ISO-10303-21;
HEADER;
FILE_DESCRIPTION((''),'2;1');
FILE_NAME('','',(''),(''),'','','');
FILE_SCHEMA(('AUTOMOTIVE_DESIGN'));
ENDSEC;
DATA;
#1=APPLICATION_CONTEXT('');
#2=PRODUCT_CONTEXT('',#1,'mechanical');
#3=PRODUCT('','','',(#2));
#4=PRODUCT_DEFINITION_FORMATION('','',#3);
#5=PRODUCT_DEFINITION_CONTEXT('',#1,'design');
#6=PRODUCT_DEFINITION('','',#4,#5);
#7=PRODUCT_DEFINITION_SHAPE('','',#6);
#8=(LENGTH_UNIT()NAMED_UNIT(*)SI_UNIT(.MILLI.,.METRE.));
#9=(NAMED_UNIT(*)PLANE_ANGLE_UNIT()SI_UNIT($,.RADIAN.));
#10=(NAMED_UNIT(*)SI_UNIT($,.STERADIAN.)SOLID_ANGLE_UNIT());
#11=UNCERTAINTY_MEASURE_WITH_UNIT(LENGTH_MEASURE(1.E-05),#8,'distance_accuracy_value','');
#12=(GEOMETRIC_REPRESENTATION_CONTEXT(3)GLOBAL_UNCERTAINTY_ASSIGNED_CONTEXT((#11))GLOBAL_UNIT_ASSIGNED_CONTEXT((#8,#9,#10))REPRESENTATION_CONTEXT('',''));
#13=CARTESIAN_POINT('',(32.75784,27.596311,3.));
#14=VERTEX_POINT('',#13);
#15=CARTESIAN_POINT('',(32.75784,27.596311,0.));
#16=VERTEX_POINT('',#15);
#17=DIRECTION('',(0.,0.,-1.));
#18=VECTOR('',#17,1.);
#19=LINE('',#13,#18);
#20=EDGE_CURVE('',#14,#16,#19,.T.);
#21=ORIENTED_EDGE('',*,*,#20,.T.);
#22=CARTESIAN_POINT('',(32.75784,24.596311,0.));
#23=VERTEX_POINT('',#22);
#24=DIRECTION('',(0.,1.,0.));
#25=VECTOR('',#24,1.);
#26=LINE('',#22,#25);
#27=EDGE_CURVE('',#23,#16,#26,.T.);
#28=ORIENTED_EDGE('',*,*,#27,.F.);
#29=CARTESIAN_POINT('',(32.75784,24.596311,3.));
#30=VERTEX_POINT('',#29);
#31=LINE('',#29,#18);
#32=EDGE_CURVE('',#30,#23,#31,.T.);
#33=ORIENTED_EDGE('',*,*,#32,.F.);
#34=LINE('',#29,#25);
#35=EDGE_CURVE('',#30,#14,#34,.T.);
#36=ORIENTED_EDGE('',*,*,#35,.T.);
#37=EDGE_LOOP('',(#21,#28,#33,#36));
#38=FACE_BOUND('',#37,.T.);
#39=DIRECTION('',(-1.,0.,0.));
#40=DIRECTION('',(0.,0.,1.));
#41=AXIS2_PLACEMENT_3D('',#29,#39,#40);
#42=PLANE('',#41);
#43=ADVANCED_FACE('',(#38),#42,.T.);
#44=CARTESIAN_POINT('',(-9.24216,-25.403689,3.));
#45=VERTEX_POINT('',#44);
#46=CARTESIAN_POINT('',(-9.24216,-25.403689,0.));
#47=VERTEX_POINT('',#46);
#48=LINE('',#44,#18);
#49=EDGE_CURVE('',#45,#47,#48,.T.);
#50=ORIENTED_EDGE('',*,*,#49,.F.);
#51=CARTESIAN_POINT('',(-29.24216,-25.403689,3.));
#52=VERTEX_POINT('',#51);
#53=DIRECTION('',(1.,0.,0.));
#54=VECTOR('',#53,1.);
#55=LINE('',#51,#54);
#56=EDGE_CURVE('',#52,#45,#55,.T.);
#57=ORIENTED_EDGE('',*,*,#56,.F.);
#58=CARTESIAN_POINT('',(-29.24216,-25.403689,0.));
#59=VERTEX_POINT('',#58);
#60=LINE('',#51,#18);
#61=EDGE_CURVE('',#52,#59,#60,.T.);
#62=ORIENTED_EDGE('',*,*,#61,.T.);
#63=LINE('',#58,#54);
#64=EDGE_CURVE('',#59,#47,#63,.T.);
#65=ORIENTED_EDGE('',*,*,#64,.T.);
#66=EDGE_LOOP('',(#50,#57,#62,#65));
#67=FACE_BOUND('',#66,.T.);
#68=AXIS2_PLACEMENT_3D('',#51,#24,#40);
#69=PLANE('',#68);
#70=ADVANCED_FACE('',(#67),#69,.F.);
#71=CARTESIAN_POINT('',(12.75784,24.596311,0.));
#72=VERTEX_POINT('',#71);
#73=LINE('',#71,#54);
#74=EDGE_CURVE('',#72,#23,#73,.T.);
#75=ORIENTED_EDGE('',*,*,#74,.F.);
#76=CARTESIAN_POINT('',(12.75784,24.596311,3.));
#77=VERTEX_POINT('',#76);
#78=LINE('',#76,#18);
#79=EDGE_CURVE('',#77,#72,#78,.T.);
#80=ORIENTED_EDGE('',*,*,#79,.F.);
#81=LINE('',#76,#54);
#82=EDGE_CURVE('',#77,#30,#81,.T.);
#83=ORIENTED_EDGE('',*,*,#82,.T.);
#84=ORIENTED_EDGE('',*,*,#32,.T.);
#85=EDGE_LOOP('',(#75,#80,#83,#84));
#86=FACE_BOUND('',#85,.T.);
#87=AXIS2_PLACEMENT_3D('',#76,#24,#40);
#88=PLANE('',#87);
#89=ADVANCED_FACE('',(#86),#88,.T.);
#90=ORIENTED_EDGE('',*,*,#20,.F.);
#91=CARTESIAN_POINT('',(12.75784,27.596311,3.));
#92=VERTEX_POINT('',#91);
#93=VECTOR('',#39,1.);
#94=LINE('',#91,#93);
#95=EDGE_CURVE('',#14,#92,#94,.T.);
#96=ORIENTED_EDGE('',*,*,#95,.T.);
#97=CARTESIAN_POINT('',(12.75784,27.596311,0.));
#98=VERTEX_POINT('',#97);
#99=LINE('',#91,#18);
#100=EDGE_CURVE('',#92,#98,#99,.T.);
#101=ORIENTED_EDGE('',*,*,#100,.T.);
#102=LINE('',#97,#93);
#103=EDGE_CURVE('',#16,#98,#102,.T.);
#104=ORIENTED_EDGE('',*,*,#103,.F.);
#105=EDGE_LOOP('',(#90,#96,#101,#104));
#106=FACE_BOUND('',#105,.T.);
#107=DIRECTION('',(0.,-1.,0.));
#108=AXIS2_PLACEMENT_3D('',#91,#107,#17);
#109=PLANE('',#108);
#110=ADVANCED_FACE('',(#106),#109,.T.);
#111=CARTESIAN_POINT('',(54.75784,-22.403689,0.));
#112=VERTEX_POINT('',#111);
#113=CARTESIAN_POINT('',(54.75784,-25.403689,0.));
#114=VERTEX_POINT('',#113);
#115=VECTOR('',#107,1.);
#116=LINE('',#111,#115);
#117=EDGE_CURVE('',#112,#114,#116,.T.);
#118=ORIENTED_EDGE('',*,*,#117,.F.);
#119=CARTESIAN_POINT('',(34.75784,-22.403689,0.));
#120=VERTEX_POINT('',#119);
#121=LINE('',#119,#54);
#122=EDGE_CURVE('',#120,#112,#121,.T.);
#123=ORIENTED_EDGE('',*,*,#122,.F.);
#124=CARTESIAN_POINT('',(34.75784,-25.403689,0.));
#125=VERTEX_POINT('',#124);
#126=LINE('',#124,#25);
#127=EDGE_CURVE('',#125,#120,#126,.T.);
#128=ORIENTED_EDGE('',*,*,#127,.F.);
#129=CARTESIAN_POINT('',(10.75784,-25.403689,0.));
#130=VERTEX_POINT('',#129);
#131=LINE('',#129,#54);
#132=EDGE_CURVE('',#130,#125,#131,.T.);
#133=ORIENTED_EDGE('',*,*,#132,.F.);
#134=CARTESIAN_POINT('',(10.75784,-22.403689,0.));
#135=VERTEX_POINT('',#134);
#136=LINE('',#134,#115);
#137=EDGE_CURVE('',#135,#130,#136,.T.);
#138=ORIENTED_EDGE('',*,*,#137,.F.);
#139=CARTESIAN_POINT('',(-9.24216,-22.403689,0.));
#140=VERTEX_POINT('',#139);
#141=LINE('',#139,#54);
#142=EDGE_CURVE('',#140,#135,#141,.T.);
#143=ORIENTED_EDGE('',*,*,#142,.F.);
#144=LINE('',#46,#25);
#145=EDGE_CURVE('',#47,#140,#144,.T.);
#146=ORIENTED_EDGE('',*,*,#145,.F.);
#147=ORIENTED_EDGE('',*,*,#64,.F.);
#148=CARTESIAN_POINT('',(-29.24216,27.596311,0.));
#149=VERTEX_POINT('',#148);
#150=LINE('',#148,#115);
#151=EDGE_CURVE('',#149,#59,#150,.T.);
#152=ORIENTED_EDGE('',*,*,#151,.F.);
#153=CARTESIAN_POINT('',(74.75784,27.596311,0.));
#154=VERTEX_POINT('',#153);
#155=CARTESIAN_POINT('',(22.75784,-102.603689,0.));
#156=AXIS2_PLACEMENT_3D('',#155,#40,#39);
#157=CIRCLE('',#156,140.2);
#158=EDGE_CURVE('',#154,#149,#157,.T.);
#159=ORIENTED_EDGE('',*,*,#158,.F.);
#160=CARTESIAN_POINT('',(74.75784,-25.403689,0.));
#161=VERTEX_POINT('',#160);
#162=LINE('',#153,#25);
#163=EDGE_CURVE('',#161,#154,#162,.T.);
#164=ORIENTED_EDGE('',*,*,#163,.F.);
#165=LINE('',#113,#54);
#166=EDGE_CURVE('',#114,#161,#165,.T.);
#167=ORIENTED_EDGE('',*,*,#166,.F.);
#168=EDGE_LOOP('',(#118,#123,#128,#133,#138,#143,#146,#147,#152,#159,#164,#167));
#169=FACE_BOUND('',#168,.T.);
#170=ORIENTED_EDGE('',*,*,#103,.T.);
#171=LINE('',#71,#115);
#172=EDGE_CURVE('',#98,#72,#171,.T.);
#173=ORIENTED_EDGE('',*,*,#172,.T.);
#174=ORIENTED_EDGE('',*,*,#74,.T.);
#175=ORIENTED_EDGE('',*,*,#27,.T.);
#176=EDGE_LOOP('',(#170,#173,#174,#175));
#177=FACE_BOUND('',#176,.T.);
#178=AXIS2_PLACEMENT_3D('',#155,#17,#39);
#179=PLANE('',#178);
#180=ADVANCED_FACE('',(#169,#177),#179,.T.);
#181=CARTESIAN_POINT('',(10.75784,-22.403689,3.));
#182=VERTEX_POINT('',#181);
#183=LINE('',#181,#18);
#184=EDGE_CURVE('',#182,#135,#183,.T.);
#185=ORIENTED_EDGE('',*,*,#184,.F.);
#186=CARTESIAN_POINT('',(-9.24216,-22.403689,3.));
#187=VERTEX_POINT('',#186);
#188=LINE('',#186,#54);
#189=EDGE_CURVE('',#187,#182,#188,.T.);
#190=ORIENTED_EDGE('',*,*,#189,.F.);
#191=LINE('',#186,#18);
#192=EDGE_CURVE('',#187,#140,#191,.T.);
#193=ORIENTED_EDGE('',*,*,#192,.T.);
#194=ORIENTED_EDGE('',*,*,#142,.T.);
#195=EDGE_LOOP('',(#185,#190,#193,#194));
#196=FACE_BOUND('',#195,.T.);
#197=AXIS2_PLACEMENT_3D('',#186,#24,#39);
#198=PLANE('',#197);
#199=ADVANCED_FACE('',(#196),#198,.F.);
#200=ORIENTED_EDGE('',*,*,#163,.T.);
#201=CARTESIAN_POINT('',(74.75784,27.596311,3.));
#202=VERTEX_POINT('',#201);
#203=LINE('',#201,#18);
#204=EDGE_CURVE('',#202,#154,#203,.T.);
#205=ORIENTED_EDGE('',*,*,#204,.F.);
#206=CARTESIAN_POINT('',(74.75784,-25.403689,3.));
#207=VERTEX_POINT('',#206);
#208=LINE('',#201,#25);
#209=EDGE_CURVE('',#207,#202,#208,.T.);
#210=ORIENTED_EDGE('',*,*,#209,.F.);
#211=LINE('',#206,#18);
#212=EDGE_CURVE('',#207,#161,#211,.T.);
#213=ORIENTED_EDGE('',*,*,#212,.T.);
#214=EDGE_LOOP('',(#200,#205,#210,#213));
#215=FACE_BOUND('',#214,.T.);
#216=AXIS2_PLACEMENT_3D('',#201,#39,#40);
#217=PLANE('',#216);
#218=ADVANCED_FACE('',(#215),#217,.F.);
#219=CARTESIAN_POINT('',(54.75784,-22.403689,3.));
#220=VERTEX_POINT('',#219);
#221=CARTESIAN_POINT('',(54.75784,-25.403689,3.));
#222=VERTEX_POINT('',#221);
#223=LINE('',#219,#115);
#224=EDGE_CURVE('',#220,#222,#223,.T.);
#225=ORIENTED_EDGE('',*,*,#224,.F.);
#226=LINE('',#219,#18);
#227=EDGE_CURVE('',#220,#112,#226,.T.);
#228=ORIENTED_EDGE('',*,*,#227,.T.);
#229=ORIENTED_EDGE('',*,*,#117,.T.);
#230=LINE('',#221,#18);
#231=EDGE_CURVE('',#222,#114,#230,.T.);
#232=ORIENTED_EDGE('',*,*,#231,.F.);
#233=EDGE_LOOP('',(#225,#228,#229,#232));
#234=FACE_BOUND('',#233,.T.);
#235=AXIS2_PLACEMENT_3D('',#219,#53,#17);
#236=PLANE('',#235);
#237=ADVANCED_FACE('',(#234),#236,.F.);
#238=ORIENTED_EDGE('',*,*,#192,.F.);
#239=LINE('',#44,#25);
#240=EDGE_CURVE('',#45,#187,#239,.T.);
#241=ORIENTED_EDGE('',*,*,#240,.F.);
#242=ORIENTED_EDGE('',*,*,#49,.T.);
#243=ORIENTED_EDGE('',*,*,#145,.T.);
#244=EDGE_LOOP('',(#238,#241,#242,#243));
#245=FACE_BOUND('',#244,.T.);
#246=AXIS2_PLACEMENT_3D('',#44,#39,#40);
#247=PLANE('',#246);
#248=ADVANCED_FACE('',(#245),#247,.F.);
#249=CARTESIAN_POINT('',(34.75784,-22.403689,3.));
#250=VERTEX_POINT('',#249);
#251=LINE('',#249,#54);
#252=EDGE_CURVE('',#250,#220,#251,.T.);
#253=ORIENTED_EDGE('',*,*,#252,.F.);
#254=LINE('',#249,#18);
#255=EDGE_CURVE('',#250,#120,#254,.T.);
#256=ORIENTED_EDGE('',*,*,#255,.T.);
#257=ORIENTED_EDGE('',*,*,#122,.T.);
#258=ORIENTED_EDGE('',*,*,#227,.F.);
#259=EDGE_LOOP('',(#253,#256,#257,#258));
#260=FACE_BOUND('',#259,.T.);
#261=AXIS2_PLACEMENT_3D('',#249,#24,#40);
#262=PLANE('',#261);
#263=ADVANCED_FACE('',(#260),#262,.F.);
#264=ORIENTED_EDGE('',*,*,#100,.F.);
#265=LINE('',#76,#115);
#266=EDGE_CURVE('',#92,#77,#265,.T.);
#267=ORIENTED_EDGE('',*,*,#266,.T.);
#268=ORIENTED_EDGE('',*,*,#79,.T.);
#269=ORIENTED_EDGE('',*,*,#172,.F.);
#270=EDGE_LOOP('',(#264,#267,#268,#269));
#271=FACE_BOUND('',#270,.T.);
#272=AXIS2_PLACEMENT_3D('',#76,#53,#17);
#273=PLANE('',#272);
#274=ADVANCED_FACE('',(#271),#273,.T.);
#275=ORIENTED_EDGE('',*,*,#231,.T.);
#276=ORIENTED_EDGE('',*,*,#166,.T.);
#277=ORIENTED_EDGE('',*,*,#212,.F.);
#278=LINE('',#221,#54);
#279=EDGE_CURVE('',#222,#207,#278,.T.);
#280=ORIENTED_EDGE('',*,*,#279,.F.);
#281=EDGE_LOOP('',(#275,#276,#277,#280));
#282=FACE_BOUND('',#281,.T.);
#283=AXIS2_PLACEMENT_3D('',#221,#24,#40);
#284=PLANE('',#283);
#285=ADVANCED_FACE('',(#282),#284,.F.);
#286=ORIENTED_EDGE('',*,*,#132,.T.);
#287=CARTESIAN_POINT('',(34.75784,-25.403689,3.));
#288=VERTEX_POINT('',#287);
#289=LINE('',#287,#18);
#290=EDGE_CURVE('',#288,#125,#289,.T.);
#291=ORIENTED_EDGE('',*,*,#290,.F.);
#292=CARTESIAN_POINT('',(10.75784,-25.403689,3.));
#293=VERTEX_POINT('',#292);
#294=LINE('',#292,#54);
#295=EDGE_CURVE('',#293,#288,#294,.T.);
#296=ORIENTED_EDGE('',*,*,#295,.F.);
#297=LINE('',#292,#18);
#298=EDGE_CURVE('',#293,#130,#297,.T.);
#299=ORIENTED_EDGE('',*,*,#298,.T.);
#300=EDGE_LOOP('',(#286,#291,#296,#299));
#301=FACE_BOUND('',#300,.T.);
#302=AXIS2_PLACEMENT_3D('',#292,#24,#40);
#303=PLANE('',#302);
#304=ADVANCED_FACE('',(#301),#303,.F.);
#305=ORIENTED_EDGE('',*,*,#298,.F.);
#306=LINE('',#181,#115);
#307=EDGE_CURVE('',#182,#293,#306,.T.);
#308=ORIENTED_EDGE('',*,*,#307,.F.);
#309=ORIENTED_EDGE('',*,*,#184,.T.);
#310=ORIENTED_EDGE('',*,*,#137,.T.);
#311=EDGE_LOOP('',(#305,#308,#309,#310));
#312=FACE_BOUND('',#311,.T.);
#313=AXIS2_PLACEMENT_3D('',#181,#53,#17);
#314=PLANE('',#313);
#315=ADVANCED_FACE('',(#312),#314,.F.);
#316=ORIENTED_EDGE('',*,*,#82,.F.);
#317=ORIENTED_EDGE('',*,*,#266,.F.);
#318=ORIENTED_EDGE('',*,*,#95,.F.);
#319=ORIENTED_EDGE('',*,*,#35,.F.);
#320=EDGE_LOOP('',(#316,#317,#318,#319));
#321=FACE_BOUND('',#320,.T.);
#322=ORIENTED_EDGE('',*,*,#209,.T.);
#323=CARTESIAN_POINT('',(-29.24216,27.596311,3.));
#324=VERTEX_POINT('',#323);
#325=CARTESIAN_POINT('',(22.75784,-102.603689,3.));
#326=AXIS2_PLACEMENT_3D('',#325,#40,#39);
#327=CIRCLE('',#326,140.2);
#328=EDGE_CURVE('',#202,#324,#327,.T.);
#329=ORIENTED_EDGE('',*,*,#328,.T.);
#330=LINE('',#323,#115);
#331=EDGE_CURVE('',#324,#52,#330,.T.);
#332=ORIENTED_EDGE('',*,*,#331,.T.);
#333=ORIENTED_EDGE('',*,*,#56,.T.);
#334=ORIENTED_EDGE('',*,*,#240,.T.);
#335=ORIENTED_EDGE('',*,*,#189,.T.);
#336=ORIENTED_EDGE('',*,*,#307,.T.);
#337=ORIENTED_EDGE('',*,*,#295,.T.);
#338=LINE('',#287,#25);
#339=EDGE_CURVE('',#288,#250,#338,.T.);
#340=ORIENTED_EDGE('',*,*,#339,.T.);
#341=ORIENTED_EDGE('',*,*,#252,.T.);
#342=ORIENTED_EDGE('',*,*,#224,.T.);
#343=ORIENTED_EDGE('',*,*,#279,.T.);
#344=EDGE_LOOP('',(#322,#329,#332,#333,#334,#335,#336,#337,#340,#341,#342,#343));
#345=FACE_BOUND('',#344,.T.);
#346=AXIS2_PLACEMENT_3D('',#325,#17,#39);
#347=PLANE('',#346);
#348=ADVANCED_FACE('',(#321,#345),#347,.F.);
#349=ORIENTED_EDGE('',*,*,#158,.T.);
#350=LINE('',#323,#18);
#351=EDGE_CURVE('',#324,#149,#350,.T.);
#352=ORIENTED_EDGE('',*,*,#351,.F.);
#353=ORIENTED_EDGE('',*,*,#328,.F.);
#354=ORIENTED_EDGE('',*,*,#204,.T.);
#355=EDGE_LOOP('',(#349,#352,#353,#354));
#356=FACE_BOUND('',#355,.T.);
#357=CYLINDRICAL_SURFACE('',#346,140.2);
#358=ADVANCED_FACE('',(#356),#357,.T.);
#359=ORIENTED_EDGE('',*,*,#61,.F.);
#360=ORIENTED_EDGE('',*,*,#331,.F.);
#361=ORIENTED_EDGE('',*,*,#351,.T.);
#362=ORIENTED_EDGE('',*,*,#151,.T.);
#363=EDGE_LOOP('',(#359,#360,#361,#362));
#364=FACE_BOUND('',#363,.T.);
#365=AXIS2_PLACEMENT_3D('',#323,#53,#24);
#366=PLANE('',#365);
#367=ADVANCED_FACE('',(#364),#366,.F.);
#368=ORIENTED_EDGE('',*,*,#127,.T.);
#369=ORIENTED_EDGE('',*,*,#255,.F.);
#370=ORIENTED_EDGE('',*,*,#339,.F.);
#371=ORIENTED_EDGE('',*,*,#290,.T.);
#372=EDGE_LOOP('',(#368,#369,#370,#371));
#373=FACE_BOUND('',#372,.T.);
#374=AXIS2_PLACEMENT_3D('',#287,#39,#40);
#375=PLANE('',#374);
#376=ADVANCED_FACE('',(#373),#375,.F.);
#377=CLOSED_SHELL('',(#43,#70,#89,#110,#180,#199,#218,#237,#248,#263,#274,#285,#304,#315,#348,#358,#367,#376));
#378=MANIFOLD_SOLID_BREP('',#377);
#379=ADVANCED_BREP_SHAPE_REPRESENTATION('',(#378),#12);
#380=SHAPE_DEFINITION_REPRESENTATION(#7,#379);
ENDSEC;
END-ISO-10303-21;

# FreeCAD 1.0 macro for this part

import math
import FreeCAD as App
import Part
import Sketcher
from FreeCAD import Vector


def add_polygon(sketch, points):
    """Adds a closed chain of lines whose ends are joined by coincident constraints."""
    first, n = sketch.GeometryCount, len(points)
    for a, b in zip(points, points[1:] + points[:1]):
        sketch.addGeometry(Part.LineSegment(App.Vector(*a, 0), App.Vector(*b, 0)), False)
    for i in range(n):
        sketch.addConstraint(Sketcher.Constraint("Coincident", first + i, 2, first + (i + 1) % n, 1))

doc = App.newDocument("Part")
params = doc.addObject("Spreadsheet::Sheet", "Params")
for row, (alias, value) in enumerate([
    ("sketch1_radius", "140.2 mm"),
    ("sketch1_width", "20 mm"),
    ("sketch1_width2", "24 mm"),
    ("sketch1_height", "3 mm"),
    ("sketch1_height2", "53 mm"),
    ("pad1_length", "3 mm"),
], start=1):
    params.set(f"A{row}", alias)
    params.set(f"B{row}", "=" + value)
    params.setAlias(f"B{row}", alias)

body = doc.addObject("PartDesign::Body", "Body")

# Sketch on XY plane
sketch1 = doc.addObject("Sketcher::SketchObject", "Sketch")
body.addObject(sketch1)
sketch1.AttachmentSupport = (doc.XY_Plane, [""])
sketch1.MapMode = "FlatFace"
sketch1.addGeometry(Part.LineSegment(Vector(-9.2, -25.4, 0), Vector(-9.2, -22.4, 0)), False)  # 0
sketch1.addGeometry(Part.LineSegment(Vector(-9.2, -22.4, 0), Vector(10.8, -22.4, 0)), False)  # 1
sketch1.addGeometry(Part.LineSegment(Vector(10.8, -22.4, 0), Vector(10.8, -25.4, 0)), False)  # 2
sketch1.addGeometry(Part.LineSegment(Vector(10.8, -25.4, 0), Vector(34.8, -25.4, 0)), False)  # 3
sketch1.addGeometry(Part.LineSegment(Vector(34.8, -25.4, 0), Vector(34.8, -22.4, 0)), False)  # 4
sketch1.addGeometry(Part.LineSegment(Vector(34.8, -22.4, 0), Vector(54.8, -22.4, 0)), False)  # 5
sketch1.addGeometry(Part.LineSegment(Vector(54.8, -22.4, 0), Vector(54.8, -25.4, 0)), False)  # 6
sketch1.addGeometry(Part.LineSegment(Vector(54.8, -25.4, 0), Vector(74.8, -25.4, 0)), False)  # 7
sketch1.addGeometry(Part.LineSegment(Vector(74.8, -25.4, 0), Vector(74.8, 27.6, 0)), False)  # 8
sketch1.addGeometry(Part.ArcOfCircle(Part.Circle(Vector(22.8, -102.6, 0), Vector(0, 0, 1), 140.2), math.radians(68), math.radians(112)), False)  # 9
sketch1.addGeometry(Part.LineSegment(Vector(-29.2, 27.6, 0), Vector(-29.2, -25.4, 0)), False)  # 10
sketch1.addGeometry(Part.LineSegment(Vector(-29.2, -25.4, 0), Vector(-9.2, -25.4, 0)), False)  # 11
add_polygon(sketch1, [(32.8, 24.6), (12.8, 24.6), (12.8, 27.6), (32.8, 27.6)])  # lines 12-15
sketch1.addConstraint([
    Sketcher.Constraint("Coincident", 0, 2, 1, 1),
    Sketcher.Constraint("Coincident", 1, 2, 2, 1),
    Sketcher.Constraint("Coincident", 2, 2, 3, 1),
    Sketcher.Constraint("Coincident", 3, 2, 4, 1),
    Sketcher.Constraint("Coincident", 4, 2, 5, 1),
    Sketcher.Constraint("Coincident", 5, 2, 6, 1),
    Sketcher.Constraint("Coincident", 6, 2, 7, 1),
    Sketcher.Constraint("Coincident", 7, 2, 8, 1),
    Sketcher.Constraint("Coincident", 8, 2, 9, 1),
    Sketcher.Constraint("Coincident", 9, 2, 10, 1),
    Sketcher.Constraint("Coincident", 10, 2, 11, 1),
    Sketcher.Constraint("Coincident", 11, 2, 0, 1),
    Sketcher.Constraint("Vertical", 0),
    Sketcher.Constraint("Horizontal", 1),
    Sketcher.Constraint("Vertical", 2),
    Sketcher.Constraint("Horizontal", 3),
    Sketcher.Constraint("Vertical", 4),
    Sketcher.Constraint("Horizontal", 5),
    Sketcher.Constraint("Vertical", 6),
    Sketcher.Constraint("Horizontal", 7),
    Sketcher.Constraint("Vertical", 8),
    Sketcher.Constraint("Vertical", 10),
    Sketcher.Constraint("Horizontal", 11),
    Sketcher.Constraint("Horizontal", 12),
    Sketcher.Constraint("Vertical", 13),
    Sketcher.Constraint("Horizontal", 14),
    Sketcher.Constraint("Vertical", 15),
    Sketcher.Constraint("Horizontal", 1, 2, 4, 2),
    Sketcher.Constraint("Horizontal", 3, 2, 6, 2),
    Sketcher.Constraint("Horizontal", 8, 2, 9, 2),
    Sketcher.Constraint("Horizontal", 7, 2, 10, 2),
    Sketcher.Constraint("Horizontal", 9, 2, 13, 2),
    Sketcher.Constraint("Equal", 1, 5),
    Sketcher.Constraint("Equal", 5, 7),
    Sketcher.Constraint("Equal", 7, 11),
    Sketcher.Constraint("Equal", 11, 12),
    Sketcher.Constraint("Equal", 6, 13),
    Sketcher.Constraint("Radius", 9, 140.2),
    Sketcher.Constraint("DistanceX", 1, 1, 1, 2, 20.0),
    Sketcher.Constraint("DistanceX", 3, 1, 3, 2, 24.0),
    Sketcher.Constraint("DistanceY", 0, 1, 0, 2, 3.0),
    Sketcher.Constraint("DistanceY", 8, 1, 8, 2, 53.0),
    Sketcher.Constraint("DistanceX", 9, 2, 12, 2, 42.0),
    Sketcher.Constraint("DistanceX", -1, 1, 9, 3, 22.75784),
    Sketcher.Constraint("DistanceY", 9, 3, -1, 1, 102.603689),
])
sketch1.setExpression("Constraints[41]", "Params.sketch1_radius")
sketch1.setExpression("Constraints[42]", "Params.sketch1_width")
sketch1.setExpression("Constraints[43]", "Params.sketch1_width2")
sketch1.setExpression("Constraints[44]", "Params.sketch1_height")
sketch1.setExpression("Constraints[45]", "Params.sketch1_height2")
pad1 = doc.addObject("PartDesign::Pad", "Pad")
body.addObject(pad1)
pad1.Profile = sketch1
pad1.setExpression("Length", "Params.pad1_length")

doc.recompute()
